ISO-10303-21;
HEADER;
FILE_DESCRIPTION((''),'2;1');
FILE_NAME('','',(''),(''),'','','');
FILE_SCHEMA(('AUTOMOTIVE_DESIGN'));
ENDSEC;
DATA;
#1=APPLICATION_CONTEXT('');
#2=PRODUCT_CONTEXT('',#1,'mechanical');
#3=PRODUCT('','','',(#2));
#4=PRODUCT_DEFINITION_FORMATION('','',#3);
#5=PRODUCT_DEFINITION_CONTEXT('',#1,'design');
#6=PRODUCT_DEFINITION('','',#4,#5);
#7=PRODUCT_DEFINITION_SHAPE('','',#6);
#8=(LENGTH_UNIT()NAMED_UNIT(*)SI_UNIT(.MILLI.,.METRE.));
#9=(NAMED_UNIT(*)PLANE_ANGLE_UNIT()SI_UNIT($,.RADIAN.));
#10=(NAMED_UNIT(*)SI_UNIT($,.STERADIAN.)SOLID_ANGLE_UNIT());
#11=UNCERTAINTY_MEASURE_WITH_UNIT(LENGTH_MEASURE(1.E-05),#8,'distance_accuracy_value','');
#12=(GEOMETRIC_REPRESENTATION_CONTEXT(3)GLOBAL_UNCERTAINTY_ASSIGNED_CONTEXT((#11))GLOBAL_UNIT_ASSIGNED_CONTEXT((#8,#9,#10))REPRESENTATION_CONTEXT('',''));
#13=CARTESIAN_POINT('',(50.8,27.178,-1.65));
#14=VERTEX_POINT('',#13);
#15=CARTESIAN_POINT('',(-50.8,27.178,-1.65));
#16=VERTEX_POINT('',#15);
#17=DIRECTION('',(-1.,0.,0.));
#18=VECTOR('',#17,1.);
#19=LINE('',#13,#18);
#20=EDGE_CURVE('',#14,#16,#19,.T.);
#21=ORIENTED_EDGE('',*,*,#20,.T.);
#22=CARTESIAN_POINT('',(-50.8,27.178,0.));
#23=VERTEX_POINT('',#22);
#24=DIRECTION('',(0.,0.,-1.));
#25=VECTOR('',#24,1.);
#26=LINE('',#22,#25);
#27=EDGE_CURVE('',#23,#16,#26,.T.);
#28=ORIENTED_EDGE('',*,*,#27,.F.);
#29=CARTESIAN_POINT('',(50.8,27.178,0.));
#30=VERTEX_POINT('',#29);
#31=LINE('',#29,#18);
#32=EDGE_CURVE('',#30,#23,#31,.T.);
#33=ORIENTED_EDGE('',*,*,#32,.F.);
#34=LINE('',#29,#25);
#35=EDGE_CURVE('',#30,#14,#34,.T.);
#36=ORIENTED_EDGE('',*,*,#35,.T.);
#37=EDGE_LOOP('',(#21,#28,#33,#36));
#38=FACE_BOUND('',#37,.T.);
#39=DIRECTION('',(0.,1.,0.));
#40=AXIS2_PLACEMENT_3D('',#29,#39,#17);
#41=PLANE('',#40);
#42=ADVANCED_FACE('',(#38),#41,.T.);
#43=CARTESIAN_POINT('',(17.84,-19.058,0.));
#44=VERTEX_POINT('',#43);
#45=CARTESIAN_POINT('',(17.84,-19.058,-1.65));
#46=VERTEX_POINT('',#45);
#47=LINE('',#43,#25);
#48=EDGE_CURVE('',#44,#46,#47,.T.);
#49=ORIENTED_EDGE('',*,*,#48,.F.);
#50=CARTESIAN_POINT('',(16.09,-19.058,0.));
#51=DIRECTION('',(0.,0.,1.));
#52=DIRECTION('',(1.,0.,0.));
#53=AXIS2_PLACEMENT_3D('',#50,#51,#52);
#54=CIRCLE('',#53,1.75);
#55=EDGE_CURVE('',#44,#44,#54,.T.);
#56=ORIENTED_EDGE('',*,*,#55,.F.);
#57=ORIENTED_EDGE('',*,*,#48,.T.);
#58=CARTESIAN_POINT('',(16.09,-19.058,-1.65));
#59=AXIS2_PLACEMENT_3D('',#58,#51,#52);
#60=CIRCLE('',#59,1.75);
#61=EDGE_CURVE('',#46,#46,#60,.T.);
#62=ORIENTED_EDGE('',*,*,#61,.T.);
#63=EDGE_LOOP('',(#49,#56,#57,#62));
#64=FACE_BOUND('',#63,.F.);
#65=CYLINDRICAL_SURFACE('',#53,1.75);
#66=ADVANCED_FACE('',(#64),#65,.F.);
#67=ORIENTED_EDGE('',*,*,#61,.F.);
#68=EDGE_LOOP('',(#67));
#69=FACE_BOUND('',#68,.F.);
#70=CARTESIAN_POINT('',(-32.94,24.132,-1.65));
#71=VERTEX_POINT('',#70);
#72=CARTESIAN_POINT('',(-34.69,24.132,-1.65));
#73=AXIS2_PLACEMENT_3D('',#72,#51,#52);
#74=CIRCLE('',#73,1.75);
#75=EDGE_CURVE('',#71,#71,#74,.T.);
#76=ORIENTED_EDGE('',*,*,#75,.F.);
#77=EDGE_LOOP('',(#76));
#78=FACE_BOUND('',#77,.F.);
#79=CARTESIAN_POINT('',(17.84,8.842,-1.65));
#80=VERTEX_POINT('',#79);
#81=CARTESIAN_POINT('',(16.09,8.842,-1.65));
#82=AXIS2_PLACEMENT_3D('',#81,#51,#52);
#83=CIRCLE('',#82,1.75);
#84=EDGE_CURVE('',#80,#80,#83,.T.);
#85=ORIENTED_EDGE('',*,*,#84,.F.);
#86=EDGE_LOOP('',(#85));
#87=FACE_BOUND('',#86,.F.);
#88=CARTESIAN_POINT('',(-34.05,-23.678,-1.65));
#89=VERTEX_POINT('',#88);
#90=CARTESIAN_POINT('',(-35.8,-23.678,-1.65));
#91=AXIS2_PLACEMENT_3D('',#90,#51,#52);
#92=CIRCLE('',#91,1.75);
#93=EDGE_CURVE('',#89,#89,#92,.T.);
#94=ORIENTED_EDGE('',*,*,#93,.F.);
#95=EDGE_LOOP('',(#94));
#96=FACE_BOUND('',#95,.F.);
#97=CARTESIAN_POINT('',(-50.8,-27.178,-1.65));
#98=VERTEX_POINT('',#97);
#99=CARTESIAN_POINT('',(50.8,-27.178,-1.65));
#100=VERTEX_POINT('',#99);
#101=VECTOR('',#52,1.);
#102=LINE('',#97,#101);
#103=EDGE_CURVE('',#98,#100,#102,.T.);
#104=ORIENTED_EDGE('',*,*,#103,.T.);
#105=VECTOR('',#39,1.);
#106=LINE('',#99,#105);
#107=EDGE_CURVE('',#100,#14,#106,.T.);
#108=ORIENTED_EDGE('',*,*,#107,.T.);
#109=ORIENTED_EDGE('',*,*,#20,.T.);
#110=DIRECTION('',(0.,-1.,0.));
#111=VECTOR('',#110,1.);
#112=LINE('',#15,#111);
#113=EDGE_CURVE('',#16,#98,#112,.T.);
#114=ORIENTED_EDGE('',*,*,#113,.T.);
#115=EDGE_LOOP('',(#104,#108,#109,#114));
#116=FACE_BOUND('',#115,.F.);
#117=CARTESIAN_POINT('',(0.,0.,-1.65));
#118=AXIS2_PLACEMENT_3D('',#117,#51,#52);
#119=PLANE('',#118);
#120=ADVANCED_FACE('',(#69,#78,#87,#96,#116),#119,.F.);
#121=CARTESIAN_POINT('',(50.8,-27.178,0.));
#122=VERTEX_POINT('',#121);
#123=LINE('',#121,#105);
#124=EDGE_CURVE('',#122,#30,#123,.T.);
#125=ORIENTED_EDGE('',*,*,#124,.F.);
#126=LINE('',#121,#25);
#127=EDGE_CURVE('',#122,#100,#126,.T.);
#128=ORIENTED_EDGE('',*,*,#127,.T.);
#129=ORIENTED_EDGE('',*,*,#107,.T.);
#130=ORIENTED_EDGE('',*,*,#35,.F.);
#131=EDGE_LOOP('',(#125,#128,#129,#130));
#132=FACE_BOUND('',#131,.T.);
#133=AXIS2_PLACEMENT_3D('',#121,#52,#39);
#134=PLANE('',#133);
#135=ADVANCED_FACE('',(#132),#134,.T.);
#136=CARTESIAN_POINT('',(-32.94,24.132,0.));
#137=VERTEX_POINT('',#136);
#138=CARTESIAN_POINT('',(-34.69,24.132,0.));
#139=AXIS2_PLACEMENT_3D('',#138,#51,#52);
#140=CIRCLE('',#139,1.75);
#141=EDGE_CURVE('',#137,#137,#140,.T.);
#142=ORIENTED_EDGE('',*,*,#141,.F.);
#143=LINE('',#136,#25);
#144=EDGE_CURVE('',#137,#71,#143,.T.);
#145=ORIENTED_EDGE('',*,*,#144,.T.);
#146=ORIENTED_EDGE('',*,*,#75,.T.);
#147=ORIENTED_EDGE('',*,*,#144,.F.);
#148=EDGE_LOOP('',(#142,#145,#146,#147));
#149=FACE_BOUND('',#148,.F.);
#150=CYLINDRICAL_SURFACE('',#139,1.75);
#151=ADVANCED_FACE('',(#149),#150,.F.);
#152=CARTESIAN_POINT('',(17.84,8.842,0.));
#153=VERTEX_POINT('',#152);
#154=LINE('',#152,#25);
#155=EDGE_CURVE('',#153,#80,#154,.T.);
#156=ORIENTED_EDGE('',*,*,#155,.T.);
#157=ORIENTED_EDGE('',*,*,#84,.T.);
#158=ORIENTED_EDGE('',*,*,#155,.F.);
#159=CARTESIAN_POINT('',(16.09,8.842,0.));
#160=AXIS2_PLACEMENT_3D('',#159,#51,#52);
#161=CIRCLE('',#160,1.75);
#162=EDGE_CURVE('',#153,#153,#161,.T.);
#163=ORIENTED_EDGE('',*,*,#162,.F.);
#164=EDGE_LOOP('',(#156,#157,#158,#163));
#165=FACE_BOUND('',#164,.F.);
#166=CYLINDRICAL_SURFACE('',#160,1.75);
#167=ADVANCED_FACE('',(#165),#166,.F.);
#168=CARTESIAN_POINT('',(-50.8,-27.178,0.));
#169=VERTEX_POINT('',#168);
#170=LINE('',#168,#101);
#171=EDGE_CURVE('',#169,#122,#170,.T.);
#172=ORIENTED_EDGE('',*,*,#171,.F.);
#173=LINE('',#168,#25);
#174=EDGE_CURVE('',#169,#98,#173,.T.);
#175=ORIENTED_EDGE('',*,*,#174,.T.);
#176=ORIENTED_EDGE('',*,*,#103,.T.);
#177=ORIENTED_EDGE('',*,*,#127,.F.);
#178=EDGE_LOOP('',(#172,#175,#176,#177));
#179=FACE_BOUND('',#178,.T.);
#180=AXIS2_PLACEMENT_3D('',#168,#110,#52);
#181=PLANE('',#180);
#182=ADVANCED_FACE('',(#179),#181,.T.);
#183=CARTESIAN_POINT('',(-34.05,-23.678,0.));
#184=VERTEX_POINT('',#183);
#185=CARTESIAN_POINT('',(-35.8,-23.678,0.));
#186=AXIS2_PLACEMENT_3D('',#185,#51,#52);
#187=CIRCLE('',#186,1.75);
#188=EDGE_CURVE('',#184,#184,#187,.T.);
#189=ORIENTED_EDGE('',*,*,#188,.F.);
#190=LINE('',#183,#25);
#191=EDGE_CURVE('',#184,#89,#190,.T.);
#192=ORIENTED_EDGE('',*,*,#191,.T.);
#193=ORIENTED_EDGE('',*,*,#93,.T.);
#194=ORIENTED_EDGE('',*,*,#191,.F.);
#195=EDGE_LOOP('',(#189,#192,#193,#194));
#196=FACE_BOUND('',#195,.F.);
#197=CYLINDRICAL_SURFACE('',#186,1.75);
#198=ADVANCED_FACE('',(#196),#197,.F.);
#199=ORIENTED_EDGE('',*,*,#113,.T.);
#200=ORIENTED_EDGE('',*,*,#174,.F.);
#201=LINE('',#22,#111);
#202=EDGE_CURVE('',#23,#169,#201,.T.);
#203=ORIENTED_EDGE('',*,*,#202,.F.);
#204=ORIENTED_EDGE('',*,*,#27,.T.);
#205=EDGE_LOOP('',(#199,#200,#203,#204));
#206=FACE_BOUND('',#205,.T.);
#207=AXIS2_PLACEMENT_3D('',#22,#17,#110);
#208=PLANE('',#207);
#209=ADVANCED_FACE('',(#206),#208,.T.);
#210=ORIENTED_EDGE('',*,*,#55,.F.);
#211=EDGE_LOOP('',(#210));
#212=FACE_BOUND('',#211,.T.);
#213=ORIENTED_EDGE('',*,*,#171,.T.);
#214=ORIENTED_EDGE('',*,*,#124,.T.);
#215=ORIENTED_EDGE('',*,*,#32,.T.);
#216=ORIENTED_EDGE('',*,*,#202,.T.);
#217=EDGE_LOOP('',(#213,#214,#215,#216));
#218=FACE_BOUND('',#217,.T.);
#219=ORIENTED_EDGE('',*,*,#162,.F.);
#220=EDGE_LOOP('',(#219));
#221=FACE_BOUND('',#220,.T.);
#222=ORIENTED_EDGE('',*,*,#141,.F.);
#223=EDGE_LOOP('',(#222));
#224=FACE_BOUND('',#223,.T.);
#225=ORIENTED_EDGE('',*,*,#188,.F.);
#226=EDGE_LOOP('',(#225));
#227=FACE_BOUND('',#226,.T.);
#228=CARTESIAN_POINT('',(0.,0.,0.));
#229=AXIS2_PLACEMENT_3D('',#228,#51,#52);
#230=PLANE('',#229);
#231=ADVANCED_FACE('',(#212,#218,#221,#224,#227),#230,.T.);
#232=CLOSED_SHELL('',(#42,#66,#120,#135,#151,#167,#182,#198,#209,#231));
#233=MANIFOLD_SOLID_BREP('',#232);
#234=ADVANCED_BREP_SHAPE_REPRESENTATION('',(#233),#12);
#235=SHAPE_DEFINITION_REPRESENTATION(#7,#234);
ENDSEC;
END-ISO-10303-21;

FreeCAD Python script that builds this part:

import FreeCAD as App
import Part
import Sketcher

V = App.Vector
Q = App.Units.Quantity

doc = App.newDocument("Part")
body = doc.addObject("PartDesign::Body", "Body")

sketch1 = body.newObject("Sketcher::SketchObject", "Sketch")
sketch1.AttachmentSupport = (doc.getObject("XY_Plane"), [""])
sketch1.MapMode = "FlatFace"
sketch1.addGeometry([
    Part.LineSegment(V(-51, 27, 0), V(-51, -27, 0)),
    Part.LineSegment(V(-51, -27, 0), V(51, -27, 0)),
    Part.LineSegment(V(51, -27, 0), V(51, 27, 0)),
    Part.LineSegment(V(51, 27, 0), V(-51, 27, 0)),
], False)
sketch1.addConstraint([
    Sketcher.Constraint("Coincident", 0, 2, 1, 1),
    Sketcher.Constraint("Coincident", 1, 2, 2, 1),
    Sketcher.Constraint("Coincident", 2, 2, 3, 1),
    Sketcher.Constraint("Coincident", 3, 2, 0, 1),
    Sketcher.Constraint("Vertical", 0),
    Sketcher.Constraint("Horizontal", 1),
    Sketcher.Constraint("Vertical", 2),
    Sketcher.Constraint("Horizontal", 3),
    Sketcher.Constraint("Symmetric", 0, 2, 2, 2, -1, 1),
    Sketcher.Constraint("DistanceX", 1, 1, 1, 2, Q("4 in")),
    Sketcher.Constraint("DistanceY", 0, 2, 0, 1, Q("2.14 in")),
])
pad1 = body.newObject("PartDesign::Pad", "Pad")
pad1.Profile = sketch1
pad1.Length = 1.65
pad1.Reversed = True

sketch2 = body.newObject("Sketcher::SketchObject", "Sketch001")
sketch2.AttachmentSupport = (doc.getObject("XY_Plane"), [""])
sketch2.MapMode = "FlatFace"
sketch2.addGeometry([
    Part.Circle(V(-34.7, 24.1, 0), V(0, 0, 1), 1.8),
    Part.Circle(V(-35.8, -23.7, 0), V(0, 0, 1), 1.8),
    Part.Circle(V(16.1, -19.1, 0), V(0, 0, 1), 1.8),
    Part.Circle(V(16.1, 8.8, 0), V(0, 0, 1), 1.8),
], False)
sketch2.addConstraint([
    Sketcher.Constraint("Equal", 0, 1),
    Sketcher.Constraint("Equal", 1, 2),
    Sketcher.Constraint("Equal", 2, 3),
    Sketcher.Constraint("Vertical", 2, 3, 3, 3),
    Sketcher.Constraint("Diameter", 0, Q("0.1378 in")),
    Sketcher.Constraint("DistanceY", 1, 3, -1, 1, Q("0.9322 in")),
    Sketcher.Constraint("DistanceY", -1, 1, 3, 3, Q("0.3481 in")),
    Sketcher.Constraint("DistanceX", 1, 3, 0, 3, Q("0.0437 in")),
    Sketcher.Constraint("DistanceY", 1, 3, 2, 3, Q("0.1819 in")),
    Sketcher.Constraint("DistanceY", 2, 3, 0, 3, Q("1.7004 in")),
    Sketcher.Constraint("DistanceX", 0, 3, -1, 1, Q("34.69 mm")),
    Sketcher.Constraint("DistanceX", -1, 1, 2, 3, Q("16.09 mm")),
])
pocket1 = body.newObject("PartDesign::Pocket", "Pocket")
pocket1.Profile = sketch2
pocket1.Length = 1.65

doc.recompute()
